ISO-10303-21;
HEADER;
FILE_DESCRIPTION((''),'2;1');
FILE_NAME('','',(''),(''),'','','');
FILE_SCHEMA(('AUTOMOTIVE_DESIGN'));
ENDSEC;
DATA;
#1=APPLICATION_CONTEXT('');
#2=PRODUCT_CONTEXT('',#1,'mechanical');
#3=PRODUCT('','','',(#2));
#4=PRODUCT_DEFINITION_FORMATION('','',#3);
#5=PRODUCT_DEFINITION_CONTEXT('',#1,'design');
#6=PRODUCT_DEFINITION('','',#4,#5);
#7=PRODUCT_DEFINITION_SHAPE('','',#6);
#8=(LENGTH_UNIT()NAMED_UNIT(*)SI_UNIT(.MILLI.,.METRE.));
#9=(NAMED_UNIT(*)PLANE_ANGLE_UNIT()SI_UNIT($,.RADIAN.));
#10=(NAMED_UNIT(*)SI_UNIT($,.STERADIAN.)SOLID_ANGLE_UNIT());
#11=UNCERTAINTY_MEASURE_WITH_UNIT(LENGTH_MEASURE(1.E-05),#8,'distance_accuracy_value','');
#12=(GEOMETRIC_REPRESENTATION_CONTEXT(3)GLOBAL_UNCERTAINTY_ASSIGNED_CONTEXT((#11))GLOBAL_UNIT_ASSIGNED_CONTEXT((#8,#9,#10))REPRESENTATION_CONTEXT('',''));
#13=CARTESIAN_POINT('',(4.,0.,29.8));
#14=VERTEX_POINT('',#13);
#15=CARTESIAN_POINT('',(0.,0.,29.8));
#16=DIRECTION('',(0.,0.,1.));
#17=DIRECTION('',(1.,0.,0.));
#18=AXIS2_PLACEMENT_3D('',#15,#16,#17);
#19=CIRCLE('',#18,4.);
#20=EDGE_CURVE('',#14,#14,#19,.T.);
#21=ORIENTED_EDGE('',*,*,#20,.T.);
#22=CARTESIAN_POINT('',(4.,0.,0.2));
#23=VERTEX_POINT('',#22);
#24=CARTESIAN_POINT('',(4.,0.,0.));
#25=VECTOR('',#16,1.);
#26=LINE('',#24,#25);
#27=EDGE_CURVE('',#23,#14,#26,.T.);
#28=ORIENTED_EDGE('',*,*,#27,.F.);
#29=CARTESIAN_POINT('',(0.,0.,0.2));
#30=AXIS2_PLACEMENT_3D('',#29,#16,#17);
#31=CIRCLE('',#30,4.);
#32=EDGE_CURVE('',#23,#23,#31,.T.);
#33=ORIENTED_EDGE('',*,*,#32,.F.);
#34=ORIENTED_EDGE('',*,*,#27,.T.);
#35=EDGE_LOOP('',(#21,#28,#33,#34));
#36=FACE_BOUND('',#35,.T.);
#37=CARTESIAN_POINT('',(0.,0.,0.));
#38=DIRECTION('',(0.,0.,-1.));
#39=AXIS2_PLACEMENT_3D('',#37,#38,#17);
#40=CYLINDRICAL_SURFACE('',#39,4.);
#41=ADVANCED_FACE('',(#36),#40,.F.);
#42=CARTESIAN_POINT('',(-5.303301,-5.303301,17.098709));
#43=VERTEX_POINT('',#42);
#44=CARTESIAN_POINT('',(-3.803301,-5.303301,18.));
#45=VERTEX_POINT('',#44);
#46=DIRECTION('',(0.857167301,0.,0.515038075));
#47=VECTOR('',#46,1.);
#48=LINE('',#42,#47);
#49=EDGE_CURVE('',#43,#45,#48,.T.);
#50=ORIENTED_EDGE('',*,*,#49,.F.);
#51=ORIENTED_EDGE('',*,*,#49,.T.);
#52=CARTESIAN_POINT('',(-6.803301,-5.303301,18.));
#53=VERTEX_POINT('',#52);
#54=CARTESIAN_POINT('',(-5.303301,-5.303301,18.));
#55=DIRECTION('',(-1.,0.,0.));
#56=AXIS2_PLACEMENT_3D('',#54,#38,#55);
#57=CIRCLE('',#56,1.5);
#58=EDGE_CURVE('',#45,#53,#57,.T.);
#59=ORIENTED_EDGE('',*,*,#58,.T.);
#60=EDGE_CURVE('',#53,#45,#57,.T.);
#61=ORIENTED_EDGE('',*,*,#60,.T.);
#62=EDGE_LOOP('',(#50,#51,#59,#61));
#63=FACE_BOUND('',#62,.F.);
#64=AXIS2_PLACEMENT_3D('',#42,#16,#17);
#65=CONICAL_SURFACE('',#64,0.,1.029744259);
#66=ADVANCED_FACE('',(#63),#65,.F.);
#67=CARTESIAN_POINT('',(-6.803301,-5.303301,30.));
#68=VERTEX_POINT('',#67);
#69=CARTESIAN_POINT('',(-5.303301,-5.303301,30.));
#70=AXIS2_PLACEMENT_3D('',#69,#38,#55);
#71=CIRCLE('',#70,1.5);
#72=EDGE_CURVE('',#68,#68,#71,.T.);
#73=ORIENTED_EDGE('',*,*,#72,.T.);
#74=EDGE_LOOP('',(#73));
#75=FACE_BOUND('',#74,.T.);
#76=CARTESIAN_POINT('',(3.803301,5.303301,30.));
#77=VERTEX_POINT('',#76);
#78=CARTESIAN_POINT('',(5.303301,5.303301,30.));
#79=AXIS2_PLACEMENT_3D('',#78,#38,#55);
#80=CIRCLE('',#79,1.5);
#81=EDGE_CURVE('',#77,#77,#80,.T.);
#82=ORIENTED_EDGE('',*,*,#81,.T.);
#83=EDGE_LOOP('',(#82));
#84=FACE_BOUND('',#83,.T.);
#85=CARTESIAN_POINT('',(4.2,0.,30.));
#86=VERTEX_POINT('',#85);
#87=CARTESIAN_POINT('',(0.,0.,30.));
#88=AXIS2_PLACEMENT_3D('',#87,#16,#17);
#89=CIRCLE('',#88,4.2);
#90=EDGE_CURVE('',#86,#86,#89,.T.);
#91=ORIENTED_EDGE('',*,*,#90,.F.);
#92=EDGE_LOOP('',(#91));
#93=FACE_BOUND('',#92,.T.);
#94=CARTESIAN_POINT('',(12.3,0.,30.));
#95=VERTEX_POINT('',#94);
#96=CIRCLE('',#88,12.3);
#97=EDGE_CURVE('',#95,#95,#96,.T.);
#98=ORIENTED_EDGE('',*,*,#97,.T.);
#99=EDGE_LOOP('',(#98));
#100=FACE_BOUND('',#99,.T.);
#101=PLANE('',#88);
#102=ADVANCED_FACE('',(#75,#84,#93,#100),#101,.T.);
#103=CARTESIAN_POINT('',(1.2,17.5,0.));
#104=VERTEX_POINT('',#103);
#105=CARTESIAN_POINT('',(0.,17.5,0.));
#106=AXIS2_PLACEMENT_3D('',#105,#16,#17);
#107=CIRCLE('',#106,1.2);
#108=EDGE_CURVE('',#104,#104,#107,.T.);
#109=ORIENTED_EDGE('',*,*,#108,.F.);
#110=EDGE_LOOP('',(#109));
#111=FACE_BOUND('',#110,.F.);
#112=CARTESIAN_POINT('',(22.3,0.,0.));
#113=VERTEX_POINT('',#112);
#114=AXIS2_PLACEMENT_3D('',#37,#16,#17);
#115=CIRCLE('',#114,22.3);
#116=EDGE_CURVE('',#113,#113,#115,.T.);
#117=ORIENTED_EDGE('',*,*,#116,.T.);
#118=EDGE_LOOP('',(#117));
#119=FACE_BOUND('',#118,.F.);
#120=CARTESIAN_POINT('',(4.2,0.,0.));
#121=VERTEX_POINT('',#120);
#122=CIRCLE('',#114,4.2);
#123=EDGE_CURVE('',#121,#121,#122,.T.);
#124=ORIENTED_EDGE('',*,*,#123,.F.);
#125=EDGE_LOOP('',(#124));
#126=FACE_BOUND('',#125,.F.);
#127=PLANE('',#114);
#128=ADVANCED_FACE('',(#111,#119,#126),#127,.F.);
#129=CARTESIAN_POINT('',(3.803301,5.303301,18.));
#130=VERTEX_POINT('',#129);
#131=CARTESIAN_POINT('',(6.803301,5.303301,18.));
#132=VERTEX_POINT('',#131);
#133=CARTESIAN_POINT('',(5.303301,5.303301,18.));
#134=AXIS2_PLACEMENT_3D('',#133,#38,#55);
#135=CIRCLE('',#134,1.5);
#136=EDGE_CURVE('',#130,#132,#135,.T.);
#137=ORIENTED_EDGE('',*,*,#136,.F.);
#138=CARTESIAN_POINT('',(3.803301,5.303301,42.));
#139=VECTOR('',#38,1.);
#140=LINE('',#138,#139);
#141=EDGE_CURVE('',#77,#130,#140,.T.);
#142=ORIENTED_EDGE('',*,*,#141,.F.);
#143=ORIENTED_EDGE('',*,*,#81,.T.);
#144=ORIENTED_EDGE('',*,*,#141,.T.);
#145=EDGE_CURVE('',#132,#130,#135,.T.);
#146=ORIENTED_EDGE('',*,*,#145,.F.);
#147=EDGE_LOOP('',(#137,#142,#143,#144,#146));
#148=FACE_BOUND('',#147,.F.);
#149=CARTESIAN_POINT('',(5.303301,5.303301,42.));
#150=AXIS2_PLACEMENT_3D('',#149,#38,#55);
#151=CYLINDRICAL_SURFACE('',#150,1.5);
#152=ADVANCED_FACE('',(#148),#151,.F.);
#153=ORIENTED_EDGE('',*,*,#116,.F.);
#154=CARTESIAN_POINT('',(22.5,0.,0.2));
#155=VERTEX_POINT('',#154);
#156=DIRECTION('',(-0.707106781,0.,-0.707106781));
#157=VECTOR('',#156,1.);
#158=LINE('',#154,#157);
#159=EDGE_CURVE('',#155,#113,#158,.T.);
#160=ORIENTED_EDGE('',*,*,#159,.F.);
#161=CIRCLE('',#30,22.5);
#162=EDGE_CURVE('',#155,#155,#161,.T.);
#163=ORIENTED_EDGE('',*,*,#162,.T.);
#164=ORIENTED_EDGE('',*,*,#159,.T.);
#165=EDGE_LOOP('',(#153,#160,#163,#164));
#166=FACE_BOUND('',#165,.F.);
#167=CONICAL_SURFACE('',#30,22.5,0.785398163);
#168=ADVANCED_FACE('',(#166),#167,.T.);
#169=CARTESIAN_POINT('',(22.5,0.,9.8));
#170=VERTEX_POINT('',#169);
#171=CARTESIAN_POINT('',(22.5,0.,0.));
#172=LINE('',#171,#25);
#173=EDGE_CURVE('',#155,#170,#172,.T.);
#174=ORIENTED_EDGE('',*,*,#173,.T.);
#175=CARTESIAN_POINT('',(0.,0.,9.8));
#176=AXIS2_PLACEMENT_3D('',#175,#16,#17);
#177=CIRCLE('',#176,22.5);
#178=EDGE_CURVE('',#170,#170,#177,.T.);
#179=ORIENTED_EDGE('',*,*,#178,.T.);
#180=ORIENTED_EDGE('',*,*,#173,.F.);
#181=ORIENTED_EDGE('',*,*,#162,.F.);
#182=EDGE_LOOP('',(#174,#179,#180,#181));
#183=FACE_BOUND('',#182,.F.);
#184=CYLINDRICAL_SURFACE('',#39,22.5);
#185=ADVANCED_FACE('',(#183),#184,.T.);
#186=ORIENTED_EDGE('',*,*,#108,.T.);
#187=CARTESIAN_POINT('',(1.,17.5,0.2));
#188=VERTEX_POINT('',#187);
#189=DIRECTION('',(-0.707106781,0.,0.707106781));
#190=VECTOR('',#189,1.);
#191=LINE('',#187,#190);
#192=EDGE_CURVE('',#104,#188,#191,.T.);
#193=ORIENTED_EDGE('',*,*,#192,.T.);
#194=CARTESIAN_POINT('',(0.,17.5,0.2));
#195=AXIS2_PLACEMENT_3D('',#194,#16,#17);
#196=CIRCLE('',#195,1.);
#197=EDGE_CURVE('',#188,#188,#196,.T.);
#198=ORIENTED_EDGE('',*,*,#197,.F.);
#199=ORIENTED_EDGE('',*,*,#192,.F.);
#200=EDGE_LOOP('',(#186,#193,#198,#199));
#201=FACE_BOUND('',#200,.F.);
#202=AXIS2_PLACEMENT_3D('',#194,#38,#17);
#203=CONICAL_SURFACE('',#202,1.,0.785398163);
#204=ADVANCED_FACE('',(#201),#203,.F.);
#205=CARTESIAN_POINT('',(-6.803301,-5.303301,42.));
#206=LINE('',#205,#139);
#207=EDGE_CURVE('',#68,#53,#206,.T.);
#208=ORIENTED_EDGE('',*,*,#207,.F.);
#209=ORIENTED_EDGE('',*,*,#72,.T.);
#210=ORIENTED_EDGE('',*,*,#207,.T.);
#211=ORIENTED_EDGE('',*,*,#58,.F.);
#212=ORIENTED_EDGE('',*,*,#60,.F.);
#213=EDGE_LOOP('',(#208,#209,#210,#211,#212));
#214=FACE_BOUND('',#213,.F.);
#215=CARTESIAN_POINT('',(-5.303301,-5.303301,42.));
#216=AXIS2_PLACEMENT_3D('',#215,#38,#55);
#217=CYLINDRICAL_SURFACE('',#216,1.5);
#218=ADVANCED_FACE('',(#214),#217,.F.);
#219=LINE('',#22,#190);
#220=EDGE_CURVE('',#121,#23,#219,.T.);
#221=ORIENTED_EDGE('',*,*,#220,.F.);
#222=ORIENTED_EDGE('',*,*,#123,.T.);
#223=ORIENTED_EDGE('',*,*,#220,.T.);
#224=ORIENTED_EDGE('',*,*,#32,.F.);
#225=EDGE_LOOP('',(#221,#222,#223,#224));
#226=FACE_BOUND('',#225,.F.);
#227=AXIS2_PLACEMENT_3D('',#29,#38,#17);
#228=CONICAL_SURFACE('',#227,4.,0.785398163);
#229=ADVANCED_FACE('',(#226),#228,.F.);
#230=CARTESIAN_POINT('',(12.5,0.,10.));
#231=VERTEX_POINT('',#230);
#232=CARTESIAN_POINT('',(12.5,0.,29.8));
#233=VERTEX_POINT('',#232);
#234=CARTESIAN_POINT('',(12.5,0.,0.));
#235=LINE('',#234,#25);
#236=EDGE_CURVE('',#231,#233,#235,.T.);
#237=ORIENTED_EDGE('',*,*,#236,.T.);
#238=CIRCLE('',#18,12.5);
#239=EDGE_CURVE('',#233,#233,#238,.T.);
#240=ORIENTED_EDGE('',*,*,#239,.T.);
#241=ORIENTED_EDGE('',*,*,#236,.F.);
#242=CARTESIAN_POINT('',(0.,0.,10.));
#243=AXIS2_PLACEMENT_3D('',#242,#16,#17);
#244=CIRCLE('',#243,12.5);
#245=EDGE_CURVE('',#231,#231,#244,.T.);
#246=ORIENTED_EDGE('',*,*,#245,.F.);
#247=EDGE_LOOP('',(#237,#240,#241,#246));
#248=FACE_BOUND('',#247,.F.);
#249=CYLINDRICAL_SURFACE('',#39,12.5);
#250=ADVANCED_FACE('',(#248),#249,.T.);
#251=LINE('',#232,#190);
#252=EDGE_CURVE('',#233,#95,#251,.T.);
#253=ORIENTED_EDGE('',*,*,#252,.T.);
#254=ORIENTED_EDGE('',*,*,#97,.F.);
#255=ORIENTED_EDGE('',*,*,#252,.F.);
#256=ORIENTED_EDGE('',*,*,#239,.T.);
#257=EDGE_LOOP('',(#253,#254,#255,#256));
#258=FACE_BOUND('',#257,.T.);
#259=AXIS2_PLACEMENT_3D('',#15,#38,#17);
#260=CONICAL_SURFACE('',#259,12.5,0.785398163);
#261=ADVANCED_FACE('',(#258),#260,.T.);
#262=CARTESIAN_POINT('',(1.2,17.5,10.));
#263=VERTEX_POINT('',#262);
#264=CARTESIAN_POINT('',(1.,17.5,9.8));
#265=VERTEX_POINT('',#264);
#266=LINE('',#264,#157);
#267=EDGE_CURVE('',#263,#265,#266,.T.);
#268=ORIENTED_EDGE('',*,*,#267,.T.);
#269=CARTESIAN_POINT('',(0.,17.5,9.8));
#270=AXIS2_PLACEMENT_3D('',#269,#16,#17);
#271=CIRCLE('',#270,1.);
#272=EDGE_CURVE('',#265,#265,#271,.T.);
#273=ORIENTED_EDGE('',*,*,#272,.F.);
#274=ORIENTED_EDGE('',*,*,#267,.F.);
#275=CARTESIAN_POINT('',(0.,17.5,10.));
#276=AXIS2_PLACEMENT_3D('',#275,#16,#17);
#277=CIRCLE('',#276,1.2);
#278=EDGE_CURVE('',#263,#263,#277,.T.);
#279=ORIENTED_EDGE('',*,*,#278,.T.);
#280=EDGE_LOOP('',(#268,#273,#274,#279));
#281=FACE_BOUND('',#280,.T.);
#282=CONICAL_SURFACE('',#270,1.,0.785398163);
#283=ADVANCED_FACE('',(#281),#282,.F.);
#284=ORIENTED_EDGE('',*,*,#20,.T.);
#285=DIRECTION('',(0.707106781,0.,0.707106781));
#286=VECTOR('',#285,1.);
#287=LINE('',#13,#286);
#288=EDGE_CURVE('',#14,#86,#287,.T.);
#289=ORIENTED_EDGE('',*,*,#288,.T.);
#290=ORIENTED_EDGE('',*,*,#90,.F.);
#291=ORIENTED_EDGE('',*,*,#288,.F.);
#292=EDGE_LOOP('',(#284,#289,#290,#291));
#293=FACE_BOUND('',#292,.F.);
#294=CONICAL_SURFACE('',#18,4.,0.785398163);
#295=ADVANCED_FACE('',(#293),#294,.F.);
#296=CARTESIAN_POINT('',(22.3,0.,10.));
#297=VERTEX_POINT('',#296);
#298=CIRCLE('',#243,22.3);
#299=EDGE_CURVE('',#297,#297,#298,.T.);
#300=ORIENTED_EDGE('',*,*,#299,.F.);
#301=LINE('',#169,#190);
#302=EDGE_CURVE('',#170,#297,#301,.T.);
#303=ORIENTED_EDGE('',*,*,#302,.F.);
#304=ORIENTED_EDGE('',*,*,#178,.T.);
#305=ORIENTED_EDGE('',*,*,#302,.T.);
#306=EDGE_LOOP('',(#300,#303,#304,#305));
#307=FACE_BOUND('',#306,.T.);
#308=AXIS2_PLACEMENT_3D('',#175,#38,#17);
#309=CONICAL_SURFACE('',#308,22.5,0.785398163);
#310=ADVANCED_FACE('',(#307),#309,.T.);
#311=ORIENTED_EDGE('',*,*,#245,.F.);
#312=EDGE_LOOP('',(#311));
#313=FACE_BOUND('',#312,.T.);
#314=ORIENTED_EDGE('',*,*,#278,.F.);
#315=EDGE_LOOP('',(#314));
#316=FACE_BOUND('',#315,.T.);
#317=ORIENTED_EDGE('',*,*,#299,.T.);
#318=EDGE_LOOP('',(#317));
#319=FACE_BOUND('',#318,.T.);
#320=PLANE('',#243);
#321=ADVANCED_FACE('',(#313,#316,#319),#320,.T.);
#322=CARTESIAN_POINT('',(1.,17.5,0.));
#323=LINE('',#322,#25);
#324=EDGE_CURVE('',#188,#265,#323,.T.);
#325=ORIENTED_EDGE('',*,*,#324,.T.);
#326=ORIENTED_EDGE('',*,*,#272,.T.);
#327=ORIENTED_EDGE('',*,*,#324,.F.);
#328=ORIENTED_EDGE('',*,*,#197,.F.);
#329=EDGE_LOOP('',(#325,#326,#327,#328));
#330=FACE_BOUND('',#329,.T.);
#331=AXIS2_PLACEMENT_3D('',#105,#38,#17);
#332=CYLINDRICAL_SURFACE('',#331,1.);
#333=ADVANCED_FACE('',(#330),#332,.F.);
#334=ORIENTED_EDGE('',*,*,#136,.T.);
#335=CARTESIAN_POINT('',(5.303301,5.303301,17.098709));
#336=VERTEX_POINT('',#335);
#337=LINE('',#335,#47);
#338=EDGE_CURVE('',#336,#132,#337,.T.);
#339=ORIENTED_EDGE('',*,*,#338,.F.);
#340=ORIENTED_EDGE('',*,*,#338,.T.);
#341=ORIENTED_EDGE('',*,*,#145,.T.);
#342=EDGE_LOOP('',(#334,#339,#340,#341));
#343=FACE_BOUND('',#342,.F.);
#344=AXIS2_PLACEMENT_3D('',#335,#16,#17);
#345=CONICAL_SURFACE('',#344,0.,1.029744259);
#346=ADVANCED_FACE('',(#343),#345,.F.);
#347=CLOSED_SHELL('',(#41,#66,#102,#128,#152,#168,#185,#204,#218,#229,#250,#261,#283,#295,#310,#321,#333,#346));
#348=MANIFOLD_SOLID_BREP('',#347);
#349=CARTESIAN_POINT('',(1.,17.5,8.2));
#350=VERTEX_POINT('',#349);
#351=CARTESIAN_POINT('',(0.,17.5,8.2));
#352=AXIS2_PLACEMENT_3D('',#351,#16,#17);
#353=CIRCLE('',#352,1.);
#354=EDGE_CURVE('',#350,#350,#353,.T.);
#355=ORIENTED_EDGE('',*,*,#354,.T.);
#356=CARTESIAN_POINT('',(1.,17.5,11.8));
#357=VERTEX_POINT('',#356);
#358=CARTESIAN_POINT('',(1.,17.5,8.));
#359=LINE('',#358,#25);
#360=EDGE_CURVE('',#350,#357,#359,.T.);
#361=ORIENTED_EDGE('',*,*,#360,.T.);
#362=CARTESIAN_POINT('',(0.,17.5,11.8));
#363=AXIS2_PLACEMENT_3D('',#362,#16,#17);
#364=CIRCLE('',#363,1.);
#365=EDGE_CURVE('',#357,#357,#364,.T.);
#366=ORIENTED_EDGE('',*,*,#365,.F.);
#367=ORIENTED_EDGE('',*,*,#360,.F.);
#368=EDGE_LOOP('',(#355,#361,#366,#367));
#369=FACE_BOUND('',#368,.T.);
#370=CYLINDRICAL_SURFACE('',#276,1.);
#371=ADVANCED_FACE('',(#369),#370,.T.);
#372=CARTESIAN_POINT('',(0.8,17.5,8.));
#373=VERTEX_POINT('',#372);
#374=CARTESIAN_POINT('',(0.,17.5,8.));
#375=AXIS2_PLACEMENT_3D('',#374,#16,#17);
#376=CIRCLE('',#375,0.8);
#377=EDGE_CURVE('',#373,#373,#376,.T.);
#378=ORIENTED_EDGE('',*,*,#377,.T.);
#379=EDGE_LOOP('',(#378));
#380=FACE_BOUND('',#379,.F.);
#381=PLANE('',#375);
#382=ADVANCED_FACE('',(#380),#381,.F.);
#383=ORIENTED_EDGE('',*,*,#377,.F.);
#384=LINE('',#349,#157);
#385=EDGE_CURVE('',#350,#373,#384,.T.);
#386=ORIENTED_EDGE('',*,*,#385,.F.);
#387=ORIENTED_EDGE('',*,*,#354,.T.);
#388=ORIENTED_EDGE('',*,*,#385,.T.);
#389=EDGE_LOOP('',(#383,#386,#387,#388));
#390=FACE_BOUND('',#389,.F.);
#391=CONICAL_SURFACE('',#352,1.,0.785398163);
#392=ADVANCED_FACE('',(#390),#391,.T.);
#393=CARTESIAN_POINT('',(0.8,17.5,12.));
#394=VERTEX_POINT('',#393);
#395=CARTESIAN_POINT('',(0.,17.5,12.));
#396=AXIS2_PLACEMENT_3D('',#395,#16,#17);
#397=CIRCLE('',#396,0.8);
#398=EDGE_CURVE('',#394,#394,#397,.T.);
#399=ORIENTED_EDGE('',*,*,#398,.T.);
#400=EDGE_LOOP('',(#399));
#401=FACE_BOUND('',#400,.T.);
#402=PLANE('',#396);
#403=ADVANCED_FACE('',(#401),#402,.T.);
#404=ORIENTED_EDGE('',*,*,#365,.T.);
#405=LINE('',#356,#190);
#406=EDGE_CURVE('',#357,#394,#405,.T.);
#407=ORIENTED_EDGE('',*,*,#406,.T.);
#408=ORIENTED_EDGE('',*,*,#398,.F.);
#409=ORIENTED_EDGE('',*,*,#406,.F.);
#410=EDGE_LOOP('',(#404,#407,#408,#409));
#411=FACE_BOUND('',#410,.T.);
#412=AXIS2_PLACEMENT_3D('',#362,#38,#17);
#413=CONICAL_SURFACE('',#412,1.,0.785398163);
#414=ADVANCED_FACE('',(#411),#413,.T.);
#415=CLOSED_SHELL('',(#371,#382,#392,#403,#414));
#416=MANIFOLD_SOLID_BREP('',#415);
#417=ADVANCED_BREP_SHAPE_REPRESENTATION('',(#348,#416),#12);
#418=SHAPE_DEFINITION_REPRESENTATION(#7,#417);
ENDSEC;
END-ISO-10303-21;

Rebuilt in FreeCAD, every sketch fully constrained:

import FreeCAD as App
import Part
import Sketcher

V = App.Vector


def edges_at(feature, points):
    """Names of the edges that pass closest to the given points."""
    edges = feature.Shape.Edges
    near = lambda p: min(range(len(edges)), key=lambda i: edges[i].distToShape(Part.Vertex(*p))[0])
    return sorted({f"Edge{near(p) + 1}" for p in points})

doc = App.newDocument("Part")
body = doc.addObject("PartDesign::Body", "Body")

# Sketch on XY plane
sketch1 = body.newObject("Sketcher::SketchObject", "Sketch")
sketch1.AttachmentSupport = (doc.getObject("XY_Plane"), [""])
sketch1.MapMode = "FlatFace"
sketch1.addGeometry([
    Part.Circle(V(0, 0, 0), V(0, 0, 1), 12.5),
    Part.Circle(V(0, 0, 0), V(0, 0, 1), 4),
], False)
sketch1.addConstraint([
    Sketcher.Constraint("Coincident", 0, 3, -1, 1),
    Sketcher.Constraint("Coincident", 1, 3, -1, 1),
    Sketcher.Constraint("Diameter", 0, 25.0),
    Sketcher.Constraint("Diameter", 1, 8.0),
])
pad1 = body.newObject("PartDesign::Pad", "Pad")
pad1.Profile = sketch1
pad1.Length = 30

# Sketch on XY plane
sketch2 = body.newObject("Sketcher::SketchObject", "Sketch001")
sketch2.AttachmentSupport = (doc.getObject("XY_Plane"), [""])
sketch2.MapMode = "FlatFace"
sketch2.addGeometry([
    Part.Circle(V(0, 0, 0), V(0, 0, 1), 22.5),
    Part.Circle(V(0, 0, 0), V(0, 0, 1), 12.5),
    Part.Circle(V(0, 17.5, 0), V(0, 0, 1), 1),
], False)
sketch2.addConstraint([
    Sketcher.Constraint("Coincident", 0, 3, -1, 1),
    Sketcher.Constraint("Coincident", 1, 3, -1, 1),
    Sketcher.Constraint("PointOnObject", 2, 3, -2),
    Sketcher.Constraint("Diameter", 0, 45.0),
    Sketcher.Constraint("Diameter", 1, 25.0),
    Sketcher.Constraint("Diameter", 2, 2.0),
    Sketcher.Constraint("DistanceY", -1, 1, 2, 3, 17.5),
])
pad2 = body.newObject("PartDesign::Pad", "Pad001")
pad2.Profile = sketch2
pad2.Length = 10
doc.recompute()

chamfer = body.newObject("PartDesign::Chamfer", "Chamfer")
chamfer.Base = (pad2, edges_at(pad2, [
    (-12.5, 0, 30),
    (-4, 0, 30),
    (-22.5, 0, 10),
    (-4, 0, 0),
    (-1, 17.5, 0),
    (-1, 17.5, 10),
    (-22.5, 0, 0),
]))
chamfer.Size = 0.2

# Sketch on XY plane
sketch3 = body.newObject("Sketcher::SketchObject", "Sketch002")
sketch3.AttachmentSupport = (doc.getObject("XY_Plane"), [""])
sketch3.MapMode = "FlatFace"
sketch3.AttachmentOffset = App.Placement(V(0, 0, 30), App.Rotation())
sketch3.addGeometry([
    Part.Circle(V(5.3, 5.3, 0), V(0, 0, 1), 1.5),
    Part.Circle(V(-5.3, -5.3, 0), V(0, 0, 1), 1.5),
], False)
sketch3.addConstraint([
    Sketcher.Constraint("Equal", 0, 1),
    Sketcher.Constraint("Symmetric", 0, 3, 1, 3, -1, 1),
    Sketcher.Constraint("Diameter", 0, 3.0),
    Sketcher.Constraint("DistanceX", -1, 1, 0, 3, 5.303301),
    Sketcher.Constraint("DistanceY", -1, 1, 0, 3, 5.303301),
])
doc.recompute()
hole = body.newObject("PartDesign::Hole", "Hole")
hole.Profile = sketch3
hole.ThreadType = "None"
hole.Diameter = 3
hole.DepthType = "Dimension"
hole.Depth = 12
hole.DrillPoint = "Angled"
hole.DrillPointAngle = 118
body2 = doc.addObject("PartDesign::Body", "Body001")

# Sketch on XY plane
sketch4 = body2.newObject("Sketcher::SketchObject", "Sketch003")
sketch4.AttachmentSupport = (doc.getObject("XY_Plane001"), [""])
sketch4.MapMode = "FlatFace"
sketch4.AttachmentOffset = App.Placement(V(0, 0, 10), App.Rotation())
sketch4.addGeometry(Part.Circle(V(0, 17.5, 0), V(0, 0, 1), 1), False)
sketch4.addConstraint([
    Sketcher.Constraint("PointOnObject", 0, 3, -2),
    Sketcher.Constraint("Diameter", 0, 2.0),
    Sketcher.Constraint("DistanceY", -1, 1, 0, 3, 17.5),
])
pad3 = body2.newObject("PartDesign::Pad", "Pad002")
pad3.Profile = sketch4
pad3.Length = 4
pad3.Midplane = True
doc.recompute()

chamfer2 = body2.newObject("PartDesign::Chamfer", "Chamfer001")
chamfer2.Base = (pad3, edges_at(pad3, [(-1, 17.5, 12), (-1, 17.5, 8)]))
chamfer2.Size = 0.2

doc.recompute()
